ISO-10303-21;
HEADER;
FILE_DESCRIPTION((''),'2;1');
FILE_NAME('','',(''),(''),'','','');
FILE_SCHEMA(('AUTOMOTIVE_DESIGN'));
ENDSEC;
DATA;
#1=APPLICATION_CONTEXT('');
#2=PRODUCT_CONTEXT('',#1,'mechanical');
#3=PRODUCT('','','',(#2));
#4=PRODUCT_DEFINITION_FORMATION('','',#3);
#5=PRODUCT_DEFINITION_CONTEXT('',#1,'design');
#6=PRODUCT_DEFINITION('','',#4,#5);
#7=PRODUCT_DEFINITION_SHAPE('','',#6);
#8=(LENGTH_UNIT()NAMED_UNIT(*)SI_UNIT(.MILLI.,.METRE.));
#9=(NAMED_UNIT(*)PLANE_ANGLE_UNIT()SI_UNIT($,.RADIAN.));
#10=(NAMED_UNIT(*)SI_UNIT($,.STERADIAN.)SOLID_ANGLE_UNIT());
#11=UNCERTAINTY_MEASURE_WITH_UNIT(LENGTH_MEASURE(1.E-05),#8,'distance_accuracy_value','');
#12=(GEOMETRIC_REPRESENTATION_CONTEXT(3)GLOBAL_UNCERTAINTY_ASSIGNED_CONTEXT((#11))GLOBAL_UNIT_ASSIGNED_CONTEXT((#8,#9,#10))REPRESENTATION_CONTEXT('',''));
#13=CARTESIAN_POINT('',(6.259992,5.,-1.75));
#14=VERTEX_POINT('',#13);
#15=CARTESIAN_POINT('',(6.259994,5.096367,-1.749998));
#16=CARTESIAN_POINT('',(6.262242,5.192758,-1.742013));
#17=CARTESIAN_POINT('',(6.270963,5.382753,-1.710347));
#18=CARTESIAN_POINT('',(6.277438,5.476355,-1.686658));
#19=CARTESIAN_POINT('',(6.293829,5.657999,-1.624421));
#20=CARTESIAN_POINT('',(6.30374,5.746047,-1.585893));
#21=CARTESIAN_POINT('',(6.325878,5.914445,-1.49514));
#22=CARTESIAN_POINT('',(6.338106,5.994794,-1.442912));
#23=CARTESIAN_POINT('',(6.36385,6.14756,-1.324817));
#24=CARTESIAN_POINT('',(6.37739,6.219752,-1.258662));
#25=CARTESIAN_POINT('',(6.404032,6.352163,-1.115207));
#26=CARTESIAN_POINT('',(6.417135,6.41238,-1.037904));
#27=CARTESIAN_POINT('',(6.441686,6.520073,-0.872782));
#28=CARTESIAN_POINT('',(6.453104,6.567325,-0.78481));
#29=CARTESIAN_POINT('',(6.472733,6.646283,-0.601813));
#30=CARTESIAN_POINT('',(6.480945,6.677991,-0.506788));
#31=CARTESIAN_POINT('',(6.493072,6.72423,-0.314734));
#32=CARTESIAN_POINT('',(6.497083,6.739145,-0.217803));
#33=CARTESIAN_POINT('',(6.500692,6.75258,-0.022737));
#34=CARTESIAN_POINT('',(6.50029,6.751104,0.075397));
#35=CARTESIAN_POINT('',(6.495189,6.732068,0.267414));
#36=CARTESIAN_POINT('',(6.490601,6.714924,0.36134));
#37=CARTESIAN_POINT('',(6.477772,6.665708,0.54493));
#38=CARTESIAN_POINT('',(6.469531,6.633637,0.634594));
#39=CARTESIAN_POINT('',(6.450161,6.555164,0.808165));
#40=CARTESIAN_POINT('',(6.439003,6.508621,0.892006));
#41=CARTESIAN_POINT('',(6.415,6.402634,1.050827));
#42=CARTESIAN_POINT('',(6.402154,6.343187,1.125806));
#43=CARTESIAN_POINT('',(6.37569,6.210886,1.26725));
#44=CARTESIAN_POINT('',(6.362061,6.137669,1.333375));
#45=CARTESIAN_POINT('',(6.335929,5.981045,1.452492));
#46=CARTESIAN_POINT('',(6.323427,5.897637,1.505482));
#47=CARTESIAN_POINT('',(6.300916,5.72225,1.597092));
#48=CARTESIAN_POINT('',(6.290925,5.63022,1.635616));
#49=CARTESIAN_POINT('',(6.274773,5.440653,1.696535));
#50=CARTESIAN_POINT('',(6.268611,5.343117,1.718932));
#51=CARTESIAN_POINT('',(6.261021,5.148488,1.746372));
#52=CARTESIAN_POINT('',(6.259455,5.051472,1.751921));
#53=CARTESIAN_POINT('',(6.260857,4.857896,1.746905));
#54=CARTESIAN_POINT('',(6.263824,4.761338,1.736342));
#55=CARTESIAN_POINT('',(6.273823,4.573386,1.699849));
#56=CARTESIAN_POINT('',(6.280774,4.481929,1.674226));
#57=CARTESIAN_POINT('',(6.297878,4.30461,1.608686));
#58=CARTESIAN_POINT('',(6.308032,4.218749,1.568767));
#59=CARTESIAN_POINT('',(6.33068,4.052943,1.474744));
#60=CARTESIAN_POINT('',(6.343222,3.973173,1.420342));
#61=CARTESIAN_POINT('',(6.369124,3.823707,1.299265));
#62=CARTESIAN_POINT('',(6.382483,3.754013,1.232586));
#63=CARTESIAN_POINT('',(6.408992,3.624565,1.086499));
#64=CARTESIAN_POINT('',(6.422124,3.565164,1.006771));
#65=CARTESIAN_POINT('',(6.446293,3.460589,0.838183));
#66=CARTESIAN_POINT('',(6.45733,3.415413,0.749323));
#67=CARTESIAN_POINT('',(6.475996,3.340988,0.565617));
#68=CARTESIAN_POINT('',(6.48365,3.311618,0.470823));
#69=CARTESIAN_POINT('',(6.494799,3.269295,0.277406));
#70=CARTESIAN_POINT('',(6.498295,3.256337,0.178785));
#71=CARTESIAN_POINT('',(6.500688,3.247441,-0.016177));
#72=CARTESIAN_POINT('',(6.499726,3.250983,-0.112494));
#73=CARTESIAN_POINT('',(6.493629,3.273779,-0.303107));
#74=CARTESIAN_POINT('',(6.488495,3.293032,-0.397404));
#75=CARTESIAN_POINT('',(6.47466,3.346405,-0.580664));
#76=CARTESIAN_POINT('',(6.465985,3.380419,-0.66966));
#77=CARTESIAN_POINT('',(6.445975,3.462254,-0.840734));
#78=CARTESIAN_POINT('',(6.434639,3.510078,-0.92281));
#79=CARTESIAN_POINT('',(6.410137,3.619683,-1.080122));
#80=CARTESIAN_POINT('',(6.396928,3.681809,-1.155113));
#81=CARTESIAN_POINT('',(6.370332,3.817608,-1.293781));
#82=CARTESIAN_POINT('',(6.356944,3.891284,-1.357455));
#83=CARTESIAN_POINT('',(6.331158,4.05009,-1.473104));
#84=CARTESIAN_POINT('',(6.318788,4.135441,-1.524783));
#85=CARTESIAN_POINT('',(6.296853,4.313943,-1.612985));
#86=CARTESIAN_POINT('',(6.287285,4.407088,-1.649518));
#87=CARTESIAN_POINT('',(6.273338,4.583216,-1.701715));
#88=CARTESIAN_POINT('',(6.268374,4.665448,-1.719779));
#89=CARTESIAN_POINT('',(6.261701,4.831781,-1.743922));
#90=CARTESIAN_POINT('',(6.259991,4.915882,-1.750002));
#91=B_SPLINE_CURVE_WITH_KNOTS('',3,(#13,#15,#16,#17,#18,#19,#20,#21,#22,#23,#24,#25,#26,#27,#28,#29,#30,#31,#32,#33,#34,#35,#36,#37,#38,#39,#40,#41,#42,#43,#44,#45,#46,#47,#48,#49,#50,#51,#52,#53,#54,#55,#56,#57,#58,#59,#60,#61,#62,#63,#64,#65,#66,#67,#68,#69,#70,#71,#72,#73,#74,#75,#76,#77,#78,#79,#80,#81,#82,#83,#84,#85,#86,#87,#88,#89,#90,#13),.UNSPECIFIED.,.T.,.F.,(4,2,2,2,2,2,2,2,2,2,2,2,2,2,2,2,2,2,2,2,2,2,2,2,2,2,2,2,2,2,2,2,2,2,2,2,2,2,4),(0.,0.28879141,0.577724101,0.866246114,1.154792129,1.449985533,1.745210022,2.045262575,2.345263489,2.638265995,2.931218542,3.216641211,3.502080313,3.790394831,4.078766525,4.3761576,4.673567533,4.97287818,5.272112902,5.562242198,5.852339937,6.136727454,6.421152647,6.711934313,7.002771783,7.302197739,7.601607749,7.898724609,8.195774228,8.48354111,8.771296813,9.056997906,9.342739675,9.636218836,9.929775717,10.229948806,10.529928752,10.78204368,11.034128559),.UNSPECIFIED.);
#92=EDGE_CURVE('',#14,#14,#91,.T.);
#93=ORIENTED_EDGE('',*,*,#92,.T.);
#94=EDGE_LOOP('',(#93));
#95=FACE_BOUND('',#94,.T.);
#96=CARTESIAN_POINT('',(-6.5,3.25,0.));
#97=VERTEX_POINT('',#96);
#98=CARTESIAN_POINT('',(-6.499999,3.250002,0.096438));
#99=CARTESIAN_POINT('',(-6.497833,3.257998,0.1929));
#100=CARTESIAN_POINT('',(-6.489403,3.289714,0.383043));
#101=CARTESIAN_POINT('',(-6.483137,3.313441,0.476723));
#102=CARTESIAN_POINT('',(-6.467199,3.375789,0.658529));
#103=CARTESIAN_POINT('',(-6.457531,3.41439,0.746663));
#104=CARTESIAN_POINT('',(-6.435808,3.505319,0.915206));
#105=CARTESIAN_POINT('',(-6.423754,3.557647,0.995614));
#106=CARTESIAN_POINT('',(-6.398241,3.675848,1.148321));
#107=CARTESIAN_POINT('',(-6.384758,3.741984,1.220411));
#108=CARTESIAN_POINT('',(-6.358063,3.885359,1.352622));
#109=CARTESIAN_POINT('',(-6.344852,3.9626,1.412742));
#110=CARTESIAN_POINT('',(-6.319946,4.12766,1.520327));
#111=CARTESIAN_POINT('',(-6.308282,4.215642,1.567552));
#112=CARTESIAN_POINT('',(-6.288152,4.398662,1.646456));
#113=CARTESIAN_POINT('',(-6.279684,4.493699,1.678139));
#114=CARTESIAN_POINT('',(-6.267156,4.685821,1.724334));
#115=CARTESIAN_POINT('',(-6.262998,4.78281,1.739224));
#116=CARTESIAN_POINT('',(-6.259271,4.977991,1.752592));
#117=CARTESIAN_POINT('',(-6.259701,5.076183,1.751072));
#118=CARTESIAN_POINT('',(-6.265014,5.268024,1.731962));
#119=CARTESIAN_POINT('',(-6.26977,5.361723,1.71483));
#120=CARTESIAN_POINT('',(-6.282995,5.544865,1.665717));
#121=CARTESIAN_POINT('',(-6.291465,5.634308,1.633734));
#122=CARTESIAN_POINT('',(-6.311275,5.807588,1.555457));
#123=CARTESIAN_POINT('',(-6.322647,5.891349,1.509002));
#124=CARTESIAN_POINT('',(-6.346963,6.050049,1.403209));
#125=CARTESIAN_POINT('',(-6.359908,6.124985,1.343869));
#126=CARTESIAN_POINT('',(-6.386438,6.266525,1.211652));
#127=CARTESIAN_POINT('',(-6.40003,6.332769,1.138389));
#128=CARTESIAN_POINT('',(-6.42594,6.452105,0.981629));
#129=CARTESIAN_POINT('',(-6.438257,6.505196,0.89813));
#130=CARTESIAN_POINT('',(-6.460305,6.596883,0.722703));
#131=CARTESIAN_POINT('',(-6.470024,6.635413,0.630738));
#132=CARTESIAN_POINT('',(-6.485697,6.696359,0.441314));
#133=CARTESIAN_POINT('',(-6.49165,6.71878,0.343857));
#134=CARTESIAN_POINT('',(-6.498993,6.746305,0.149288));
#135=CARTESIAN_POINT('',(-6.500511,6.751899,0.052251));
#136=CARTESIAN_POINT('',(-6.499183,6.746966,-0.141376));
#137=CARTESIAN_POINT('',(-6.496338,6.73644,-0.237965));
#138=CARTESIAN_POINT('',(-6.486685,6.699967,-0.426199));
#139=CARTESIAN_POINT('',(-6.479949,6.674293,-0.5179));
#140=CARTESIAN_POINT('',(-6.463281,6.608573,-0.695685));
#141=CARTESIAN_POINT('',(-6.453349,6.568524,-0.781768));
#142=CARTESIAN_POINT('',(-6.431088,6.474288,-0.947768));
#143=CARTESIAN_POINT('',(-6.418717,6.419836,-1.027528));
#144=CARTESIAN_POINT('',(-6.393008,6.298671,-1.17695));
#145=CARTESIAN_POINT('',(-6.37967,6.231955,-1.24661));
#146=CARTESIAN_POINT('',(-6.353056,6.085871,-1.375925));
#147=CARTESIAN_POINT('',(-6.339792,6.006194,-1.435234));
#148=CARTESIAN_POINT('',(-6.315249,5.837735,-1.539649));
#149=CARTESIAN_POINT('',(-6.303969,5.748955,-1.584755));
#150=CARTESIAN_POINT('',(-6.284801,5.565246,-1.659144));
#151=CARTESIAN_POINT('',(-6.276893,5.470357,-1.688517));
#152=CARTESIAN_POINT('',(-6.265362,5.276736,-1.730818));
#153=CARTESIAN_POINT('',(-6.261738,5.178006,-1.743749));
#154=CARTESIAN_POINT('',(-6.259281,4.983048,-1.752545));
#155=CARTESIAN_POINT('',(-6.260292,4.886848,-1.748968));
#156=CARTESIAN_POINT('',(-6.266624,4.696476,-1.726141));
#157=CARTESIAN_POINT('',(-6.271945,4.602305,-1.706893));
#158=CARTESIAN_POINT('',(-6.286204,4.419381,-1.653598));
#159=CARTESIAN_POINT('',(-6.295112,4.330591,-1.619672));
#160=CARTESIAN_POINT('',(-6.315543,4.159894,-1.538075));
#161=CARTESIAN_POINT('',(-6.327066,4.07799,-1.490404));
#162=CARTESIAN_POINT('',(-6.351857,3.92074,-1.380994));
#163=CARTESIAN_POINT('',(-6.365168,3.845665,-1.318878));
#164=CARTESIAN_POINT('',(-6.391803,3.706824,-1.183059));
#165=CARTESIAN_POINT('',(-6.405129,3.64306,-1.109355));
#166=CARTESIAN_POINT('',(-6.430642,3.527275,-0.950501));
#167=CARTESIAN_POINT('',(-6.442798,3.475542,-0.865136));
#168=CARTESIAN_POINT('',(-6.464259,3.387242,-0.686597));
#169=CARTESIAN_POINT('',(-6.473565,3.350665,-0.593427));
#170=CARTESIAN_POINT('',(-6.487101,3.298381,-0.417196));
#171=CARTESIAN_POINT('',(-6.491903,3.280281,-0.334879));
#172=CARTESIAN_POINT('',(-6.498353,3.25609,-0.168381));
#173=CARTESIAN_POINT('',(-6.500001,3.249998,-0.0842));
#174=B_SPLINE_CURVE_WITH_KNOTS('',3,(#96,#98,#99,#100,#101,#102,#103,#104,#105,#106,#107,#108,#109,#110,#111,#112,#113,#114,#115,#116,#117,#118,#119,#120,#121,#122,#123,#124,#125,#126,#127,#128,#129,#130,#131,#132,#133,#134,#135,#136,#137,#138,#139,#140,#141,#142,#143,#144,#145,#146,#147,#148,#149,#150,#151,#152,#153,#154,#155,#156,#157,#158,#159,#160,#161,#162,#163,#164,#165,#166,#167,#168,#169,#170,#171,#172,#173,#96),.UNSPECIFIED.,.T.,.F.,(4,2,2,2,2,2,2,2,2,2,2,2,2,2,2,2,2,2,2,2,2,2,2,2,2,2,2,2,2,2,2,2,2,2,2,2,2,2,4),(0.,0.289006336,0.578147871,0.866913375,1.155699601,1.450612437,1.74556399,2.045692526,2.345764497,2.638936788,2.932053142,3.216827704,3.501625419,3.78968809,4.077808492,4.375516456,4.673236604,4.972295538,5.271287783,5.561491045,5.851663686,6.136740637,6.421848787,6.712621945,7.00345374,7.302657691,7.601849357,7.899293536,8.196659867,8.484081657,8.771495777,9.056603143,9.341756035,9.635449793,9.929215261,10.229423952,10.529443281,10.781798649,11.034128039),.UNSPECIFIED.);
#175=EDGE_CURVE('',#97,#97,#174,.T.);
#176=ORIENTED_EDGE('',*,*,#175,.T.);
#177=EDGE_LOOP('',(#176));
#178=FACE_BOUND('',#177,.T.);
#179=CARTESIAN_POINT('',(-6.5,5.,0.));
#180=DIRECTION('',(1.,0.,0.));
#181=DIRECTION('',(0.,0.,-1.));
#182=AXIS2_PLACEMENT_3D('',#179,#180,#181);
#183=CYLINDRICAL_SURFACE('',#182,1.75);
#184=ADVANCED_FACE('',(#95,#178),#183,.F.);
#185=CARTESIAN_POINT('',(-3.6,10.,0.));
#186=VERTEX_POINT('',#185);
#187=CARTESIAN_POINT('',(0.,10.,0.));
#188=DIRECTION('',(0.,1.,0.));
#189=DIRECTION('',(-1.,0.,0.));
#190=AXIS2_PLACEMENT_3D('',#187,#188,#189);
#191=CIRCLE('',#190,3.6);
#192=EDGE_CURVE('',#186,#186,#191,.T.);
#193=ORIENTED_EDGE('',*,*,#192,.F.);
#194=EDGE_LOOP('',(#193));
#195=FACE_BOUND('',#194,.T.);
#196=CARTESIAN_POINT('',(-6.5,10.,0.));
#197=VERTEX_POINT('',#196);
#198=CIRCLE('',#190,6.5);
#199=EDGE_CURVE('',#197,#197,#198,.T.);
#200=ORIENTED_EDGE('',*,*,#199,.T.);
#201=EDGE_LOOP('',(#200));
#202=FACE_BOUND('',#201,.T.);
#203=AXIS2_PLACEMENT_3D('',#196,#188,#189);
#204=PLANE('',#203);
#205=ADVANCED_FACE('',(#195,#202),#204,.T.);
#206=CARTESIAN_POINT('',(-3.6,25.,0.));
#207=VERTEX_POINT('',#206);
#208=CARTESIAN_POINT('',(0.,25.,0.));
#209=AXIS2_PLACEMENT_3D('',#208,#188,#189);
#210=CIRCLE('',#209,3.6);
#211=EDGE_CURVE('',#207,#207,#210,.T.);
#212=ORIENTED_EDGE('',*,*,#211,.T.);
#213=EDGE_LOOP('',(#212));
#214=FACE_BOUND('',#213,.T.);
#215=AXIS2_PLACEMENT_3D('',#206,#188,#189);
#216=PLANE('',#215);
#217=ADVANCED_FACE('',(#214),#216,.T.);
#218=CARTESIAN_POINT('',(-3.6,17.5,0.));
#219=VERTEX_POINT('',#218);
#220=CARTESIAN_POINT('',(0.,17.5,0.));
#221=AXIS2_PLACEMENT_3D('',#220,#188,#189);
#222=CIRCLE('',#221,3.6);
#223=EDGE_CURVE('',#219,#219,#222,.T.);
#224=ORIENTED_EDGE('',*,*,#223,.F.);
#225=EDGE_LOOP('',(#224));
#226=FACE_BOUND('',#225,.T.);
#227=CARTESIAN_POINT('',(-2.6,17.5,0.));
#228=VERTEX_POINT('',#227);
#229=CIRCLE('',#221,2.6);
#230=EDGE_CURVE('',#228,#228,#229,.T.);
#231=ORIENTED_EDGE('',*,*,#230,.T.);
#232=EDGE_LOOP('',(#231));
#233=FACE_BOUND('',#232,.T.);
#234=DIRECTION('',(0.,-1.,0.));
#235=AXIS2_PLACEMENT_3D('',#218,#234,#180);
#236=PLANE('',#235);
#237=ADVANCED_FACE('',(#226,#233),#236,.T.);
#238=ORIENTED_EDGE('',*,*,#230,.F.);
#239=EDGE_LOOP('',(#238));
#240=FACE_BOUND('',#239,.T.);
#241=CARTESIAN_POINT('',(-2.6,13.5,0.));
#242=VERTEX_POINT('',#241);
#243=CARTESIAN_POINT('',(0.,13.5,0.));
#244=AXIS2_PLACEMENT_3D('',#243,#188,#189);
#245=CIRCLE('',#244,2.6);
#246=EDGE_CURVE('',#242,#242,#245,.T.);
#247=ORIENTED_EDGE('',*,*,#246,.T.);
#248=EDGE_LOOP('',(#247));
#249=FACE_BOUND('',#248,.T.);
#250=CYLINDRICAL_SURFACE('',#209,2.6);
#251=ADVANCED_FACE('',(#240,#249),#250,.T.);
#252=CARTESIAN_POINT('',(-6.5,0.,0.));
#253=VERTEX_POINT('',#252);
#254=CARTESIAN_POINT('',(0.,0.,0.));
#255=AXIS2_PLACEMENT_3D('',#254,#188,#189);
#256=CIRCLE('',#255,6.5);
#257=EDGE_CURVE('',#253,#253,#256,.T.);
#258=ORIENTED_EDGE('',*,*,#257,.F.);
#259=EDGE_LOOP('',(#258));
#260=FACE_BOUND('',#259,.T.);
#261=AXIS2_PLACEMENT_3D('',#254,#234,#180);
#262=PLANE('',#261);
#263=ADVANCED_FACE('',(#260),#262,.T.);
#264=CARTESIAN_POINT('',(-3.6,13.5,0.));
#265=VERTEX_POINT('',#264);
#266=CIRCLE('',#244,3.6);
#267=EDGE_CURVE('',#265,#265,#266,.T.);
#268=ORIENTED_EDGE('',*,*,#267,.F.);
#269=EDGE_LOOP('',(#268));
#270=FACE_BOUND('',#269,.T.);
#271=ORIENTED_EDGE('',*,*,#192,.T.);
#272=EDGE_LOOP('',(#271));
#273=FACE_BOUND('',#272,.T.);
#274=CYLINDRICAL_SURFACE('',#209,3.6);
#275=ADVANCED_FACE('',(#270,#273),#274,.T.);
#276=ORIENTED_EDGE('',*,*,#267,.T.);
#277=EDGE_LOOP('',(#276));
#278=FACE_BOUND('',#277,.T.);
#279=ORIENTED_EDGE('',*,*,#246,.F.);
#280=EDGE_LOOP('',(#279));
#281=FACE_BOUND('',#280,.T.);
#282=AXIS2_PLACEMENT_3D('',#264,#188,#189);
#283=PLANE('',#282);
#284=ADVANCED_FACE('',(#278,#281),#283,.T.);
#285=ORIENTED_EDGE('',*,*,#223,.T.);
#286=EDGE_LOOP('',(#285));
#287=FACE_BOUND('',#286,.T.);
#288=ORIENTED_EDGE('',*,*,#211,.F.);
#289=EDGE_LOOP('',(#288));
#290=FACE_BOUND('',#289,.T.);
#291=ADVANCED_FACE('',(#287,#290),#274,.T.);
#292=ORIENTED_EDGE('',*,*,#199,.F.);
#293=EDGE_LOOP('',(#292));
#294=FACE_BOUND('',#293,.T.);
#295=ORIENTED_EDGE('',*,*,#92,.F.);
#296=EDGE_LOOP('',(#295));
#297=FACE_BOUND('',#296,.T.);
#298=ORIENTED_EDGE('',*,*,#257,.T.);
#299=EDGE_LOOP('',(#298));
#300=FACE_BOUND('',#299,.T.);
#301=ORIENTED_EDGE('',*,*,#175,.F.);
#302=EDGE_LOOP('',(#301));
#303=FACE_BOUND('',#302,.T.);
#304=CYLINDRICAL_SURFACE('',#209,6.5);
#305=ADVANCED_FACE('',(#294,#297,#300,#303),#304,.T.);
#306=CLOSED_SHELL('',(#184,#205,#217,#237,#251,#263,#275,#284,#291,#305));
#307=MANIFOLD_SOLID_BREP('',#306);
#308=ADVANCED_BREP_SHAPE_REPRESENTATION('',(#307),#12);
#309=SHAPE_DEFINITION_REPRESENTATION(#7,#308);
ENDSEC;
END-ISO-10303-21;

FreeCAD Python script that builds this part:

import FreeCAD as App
import Part
import Sketcher

V = App.Vector
Q = App.Units.Quantity

doc = App.newDocument("Part")
body = doc.addObject("PartDesign::Body", "Body")

# Sketch on XY plane
sketch1 = body.newObject("Sketcher::SketchObject", "Sketch")
sketch1.AttachmentSupport = (doc.getObject("XY_Plane"), [""])
sketch1.MapMode = "FlatFace"
sketch1.addGeometry([
    Part.LineSegment(V(-6.5, 0, 0), V(0, 0, 0)),  # 0
    Part.LineSegment(V(0, 0, 0), V(0, 25, 0)),  # 1
    Part.LineSegment(V(0, 25, 0), V(-3.6, 25, 0)),  # 2
    Part.LineSegment(V(-3.6, 25, 0), V(-3.6, 17.5, 0)),  # 3
    Part.LineSegment(V(-3.6, 17.5, 0), V(-2.6, 17.5, 0)),  # 4
    Part.LineSegment(V(-2.6, 17.5, 0), V(-2.6, 13.5, 0)),  # 5
    Part.LineSegment(V(-2.6, 13.5, 0), V(-3.6, 13.5, 0)),  # 6
    Part.LineSegment(V(-3.6, 13.5, 0), V(-3.6, 10, 0)),  # 7
    Part.LineSegment(V(-3.6, 10, 0), V(-6.5, 10, 0)),  # 8
    Part.LineSegment(V(-6.5, 10, 0), V(-6.5, 0, 0)),  # 9
], False)
sketch1.addConstraint([
    Sketcher.Constraint("Coincident", 0, 2, 1, 1),
    Sketcher.Constraint("Coincident", 1, 2, 2, 1),
    Sketcher.Constraint("Coincident", 2, 2, 3, 1),
    Sketcher.Constraint("Coincident", 3, 2, 4, 1),
    Sketcher.Constraint("Coincident", 4, 2, 5, 1),
    Sketcher.Constraint("Coincident", 5, 2, 6, 1),
    Sketcher.Constraint("Coincident", 6, 2, 7, 1),
    Sketcher.Constraint("Coincident", 7, 2, 8, 1),
    Sketcher.Constraint("Coincident", 8, 2, 9, 1),
    Sketcher.Constraint("Coincident", 9, 2, 0, 1),
    Sketcher.Constraint("Horizontal", 0),
    Sketcher.Constraint("Vertical", 1),
    Sketcher.Constraint("Horizontal", 2),
    Sketcher.Constraint("Vertical", 3),
    Sketcher.Constraint("Horizontal", 4),
    Sketcher.Constraint("Vertical", 5),
    Sketcher.Constraint("Horizontal", 6),
    Sketcher.Constraint("Vertical", 7),
    Sketcher.Constraint("Horizontal", 8),
    Sketcher.Constraint("Vertical", 9),
    Sketcher.Constraint("Coincident", 0, 2, -1, 1),
    Sketcher.Constraint("Vertical", 3, 2, 6, 2),
    Sketcher.Constraint("DistanceX", 4, 1, 4, 2, Q("1 mm")),
    Sketcher.Constraint("DistanceY", 1, 1, 1, 2, Q("25 mm")),
    Sketcher.Constraint("DistanceY", 5, 2, 5, 1, Q("4 mm")),
    Sketcher.Constraint("DistanceY", 9, 2, 9, 1, Q("10 mm")),
    Sketcher.Constraint("DistanceX", 0, 1, 0, 2, Q("6.5 mm")),
    Sketcher.Constraint("DistanceX", 2, 2, 2, 1, Q("3.6 mm")),
    Sketcher.Constraint("DistanceY", 3, 2, 3, 1, Q("7.5 mm")),
])
revolution = body.newObject("PartDesign::Revolution", "Revolution")
revolution.Profile = sketch1
revolution.ReferenceAxis = (sketch1, ["V_Axis"])
revolution.Angle = 360

# Sketch on YZ plane
sketch2 = body.newObject("Sketcher::SketchObject", "Sketch001")
sketch2.AttachmentSupport = (doc.getObject("YZ_Plane"), [""])
sketch2.MapMode = "FlatFace"
sketch2.addGeometry(Part.Circle(V(5, 0, 0), V(0, 0, 1), 1.8), False)
sketch2.addConstraint([
    Sketcher.Constraint("PointOnObject", 0, 3, -1),
    Sketcher.Constraint("Diameter", 0, Q("3.5 mm")),
    Sketcher.Constraint("DistanceX", -1, 1, 0, 3, Q("5 mm")),
])
pocket1 = body.newObject("PartDesign::Pocket", "Pocket")
pocket1.Profile = sketch2
pocket1.Type = "ThroughAll"
pocket1.Midplane = True

doc.recompute()
